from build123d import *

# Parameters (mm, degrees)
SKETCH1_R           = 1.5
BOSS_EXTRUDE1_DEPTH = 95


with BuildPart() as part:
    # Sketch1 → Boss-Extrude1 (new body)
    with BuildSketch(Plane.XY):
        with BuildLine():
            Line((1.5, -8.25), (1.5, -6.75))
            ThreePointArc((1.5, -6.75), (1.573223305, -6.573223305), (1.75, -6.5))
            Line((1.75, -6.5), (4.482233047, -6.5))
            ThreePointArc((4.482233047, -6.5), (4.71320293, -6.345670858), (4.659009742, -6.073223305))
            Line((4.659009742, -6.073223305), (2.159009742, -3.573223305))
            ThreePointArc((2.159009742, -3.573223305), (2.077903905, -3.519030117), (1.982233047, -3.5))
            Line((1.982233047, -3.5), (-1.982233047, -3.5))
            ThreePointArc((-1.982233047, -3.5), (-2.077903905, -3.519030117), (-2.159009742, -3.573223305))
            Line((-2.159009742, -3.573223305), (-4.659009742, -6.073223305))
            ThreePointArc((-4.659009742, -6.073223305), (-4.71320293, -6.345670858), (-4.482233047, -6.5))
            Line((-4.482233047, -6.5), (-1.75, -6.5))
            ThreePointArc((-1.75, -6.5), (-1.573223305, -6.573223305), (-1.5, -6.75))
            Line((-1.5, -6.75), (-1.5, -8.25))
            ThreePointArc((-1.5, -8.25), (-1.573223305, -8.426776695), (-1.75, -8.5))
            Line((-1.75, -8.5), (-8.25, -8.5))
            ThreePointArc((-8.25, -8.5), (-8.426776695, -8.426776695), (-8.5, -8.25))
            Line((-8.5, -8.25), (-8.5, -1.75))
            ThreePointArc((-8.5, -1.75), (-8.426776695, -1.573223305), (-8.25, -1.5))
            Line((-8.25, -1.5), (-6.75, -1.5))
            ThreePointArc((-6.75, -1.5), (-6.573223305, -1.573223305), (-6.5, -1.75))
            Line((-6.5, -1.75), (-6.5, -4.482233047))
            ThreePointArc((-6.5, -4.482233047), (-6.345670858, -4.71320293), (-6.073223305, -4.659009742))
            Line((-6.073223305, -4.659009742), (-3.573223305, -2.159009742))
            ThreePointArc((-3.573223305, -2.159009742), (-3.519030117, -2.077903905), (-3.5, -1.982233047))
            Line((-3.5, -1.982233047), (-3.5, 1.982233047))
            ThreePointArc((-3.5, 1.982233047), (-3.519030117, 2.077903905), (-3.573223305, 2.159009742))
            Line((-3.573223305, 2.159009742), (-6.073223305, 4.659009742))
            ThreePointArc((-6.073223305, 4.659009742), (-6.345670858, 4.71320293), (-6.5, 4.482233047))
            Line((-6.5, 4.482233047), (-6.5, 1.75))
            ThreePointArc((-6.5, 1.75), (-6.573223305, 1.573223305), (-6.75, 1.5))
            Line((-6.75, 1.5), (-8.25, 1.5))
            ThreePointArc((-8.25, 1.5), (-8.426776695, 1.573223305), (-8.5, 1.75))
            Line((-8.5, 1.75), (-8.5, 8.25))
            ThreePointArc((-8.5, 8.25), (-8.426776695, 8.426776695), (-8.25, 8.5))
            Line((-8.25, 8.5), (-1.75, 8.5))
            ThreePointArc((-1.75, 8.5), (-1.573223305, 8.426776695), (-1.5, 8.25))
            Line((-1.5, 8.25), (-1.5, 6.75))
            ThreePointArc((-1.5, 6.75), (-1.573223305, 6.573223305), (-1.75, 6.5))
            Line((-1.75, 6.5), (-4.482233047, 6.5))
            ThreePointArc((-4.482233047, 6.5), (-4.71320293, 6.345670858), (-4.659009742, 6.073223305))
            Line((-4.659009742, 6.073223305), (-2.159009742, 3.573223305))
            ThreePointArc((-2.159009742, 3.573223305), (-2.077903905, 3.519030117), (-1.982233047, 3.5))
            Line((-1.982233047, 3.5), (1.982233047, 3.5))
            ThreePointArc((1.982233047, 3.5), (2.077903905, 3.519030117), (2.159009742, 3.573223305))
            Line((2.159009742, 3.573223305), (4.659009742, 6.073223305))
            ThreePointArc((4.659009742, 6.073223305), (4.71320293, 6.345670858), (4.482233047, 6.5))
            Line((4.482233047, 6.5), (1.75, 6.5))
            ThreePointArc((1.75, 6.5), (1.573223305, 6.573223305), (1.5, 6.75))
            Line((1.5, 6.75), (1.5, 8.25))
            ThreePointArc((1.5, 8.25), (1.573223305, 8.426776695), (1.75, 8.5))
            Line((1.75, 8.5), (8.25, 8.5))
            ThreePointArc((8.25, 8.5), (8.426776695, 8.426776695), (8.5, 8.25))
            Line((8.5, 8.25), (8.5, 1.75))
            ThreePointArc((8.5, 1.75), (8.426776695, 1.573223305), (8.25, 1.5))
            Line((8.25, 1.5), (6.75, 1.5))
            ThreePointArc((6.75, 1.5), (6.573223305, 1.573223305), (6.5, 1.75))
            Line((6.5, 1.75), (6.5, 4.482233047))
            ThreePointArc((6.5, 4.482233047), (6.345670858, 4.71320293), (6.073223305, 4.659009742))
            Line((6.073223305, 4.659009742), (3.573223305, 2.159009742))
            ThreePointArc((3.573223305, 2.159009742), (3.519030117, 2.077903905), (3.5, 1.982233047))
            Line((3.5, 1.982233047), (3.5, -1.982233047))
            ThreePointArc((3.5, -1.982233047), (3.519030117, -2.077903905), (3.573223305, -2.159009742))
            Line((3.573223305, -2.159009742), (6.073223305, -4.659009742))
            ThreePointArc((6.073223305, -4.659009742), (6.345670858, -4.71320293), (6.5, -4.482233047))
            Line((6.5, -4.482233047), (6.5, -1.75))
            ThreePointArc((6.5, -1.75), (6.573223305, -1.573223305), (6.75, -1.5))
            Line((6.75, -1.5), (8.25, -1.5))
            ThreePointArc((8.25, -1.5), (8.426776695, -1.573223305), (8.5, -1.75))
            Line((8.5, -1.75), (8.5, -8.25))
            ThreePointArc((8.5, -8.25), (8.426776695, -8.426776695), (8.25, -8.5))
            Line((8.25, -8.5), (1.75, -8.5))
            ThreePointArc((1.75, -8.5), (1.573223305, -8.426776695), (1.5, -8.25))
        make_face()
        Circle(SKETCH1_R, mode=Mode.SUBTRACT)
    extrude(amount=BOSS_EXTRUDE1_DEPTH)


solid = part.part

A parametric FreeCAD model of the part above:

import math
import FreeCAD as App
import Part
import Sketcher
from FreeCAD import Vector

doc = App.newDocument("Part")
body = doc.addObject("PartDesign::Body", "Body")

# Sketch on XY plane
sketch1 = doc.addObject("Sketcher::SketchObject", "Sketch")
body.addObject(sketch1)
sketch1.AttachmentSupport = (doc.XY_Plane, [""])
sketch1.MapMode = "FlatFace"
sketch1.addGeometry([
    Part.LineSegment(Vector(1.5, -6.75, 0), Vector(1.5, -8.25, 0)),  # 0
    Part.ArcOfCircle(Part.Circle(Vector(1.75, -8.25, 0), Vector(0, 0, 1), 0.25), math.radians(-180), math.radians(-90)),  # 1
    Part.LineSegment(Vector(1.75, -8.5, 0), Vector(8.25, -8.5, 0)),  # 2
    Part.ArcOfCircle(Part.Circle(Vector(8.25, -8.25, 0), Vector(0, 0, 1), 0.25), math.radians(-90), math.radians(0)),  # 3
    Part.LineSegment(Vector(8.5, -8.25, 0), Vector(8.5, -1.75, 0)),  # 4
    Part.ArcOfCircle(Part.Circle(Vector(8.25, -1.75, 0), Vector(0, 0, 1), 0.25), math.radians(0), math.radians(90)),  # 5
    Part.LineSegment(Vector(8.25, -1.5, 0), Vector(6.75, -1.5, 0)),  # 6
    Part.ArcOfCircle(Part.Circle(Vector(6.75, -1.75, 0), Vector(0, 0, 1), 0.25), math.radians(90), math.radians(180)),  # 7
    Part.LineSegment(Vector(6.5, -1.75, 0), Vector(6.5, -4.48, 0)),  # 8
    Part.ArcOfCircle(Part.Circle(Vector(6.25, -4.48, 0), Vector(0, 0, 1), 0.25), math.radians(-135), math.radians(0)),  # 9
    Part.LineSegment(Vector(6.07, -4.66, 0), Vector(3.57, -2.16, 0)),  # 10
    Part.ArcOfCircle(Part.Circle(Vector(3.75, -1.98, 0), Vector(0, 0, 1), 0.25), math.radians(180), math.radians(225)),  # 11
    Part.LineSegment(Vector(3.5, -1.98, 0), Vector(3.5, 1.98, 0)),  # 12
    Part.ArcOfCircle(Part.Circle(Vector(3.75, 1.98, 0), Vector(0, 0, 1), 0.25), math.radians(135), math.radians(180)),  # 13
    Part.LineSegment(Vector(3.57, 2.16, 0), Vector(6.07, 4.66, 0)),  # 14
    Part.ArcOfCircle(Part.Circle(Vector(6.25, 4.48, 0), Vector(0, 0, 1), 0.25), math.radians(0), math.radians(135)),  # 15
    Part.LineSegment(Vector(6.5, 4.48, 0), Vector(6.5, 1.75, 0)),  # 16
    Part.ArcOfCircle(Part.Circle(Vector(6.75, 1.75, 0), Vector(0, 0, 1), 0.25), math.radians(-180), math.radians(-90)),  # 17
    Part.LineSegment(Vector(6.75, 1.5, 0), Vector(8.25, 1.5, 0)),  # 18
    Part.ArcOfCircle(Part.Circle(Vector(8.25, 1.75, 0), Vector(0, 0, 1), 0.25), math.radians(-90), math.radians(0)),  # 19
    Part.LineSegment(Vector(8.5, 1.75, 0), Vector(8.5, 8.25, 0)),  # 20
    Part.ArcOfCircle(Part.Circle(Vector(8.25, 8.25, 0), Vector(0, 0, 1), 0.25), math.radians(0), math.radians(90)),  # 21
    Part.LineSegment(Vector(8.25, 8.5, 0), Vector(1.75, 8.5, 0)),  # 22
    Part.ArcOfCircle(Part.Circle(Vector(1.75, 8.25, 0), Vector(0, 0, 1), 0.25), math.radians(90), math.radians(180)),  # 23
    Part.LineSegment(Vector(1.5, 8.25, 0), Vector(1.5, 6.75, 0)),  # 24
    Part.ArcOfCircle(Part.Circle(Vector(1.75, 6.75, 0), Vector(0, 0, 1), 0.25), math.radians(-180), math.radians(-90)),  # 25
    Part.LineSegment(Vector(1.75, 6.5, 0), Vector(4.48, 6.5, 0)),  # 26
    Part.ArcOfCircle(Part.Circle(Vector(4.48, 6.25, 0), Vector(0, 0, 1), 0.25), math.radians(-45), math.radians(90)),  # 27
    Part.LineSegment(Vector(4.66, 6.07, 0), Vector(2.16, 3.57, 0)),  # 28
    Part.ArcOfCircle(Part.Circle(Vector(1.98, 3.75, 0), Vector(0, 0, 1), 0.25), math.radians(-90), math.radians(-45)),  # 29
    Part.LineSegment(Vector(1.98, 3.5, 0), Vector(-1.98, 3.5, 0)),  # 30
    Part.ArcOfCircle(Part.Circle(Vector(-1.98, 3.75, 0), Vector(0, 0, 1), 0.25), math.radians(-135), math.radians(-90)),  # 31
    Part.LineSegment(Vector(-2.16, 3.57, 0), Vector(-4.66, 6.07, 0)),  # 32
    Part.ArcOfCircle(Part.Circle(Vector(-4.48, 6.25, 0), Vector(0, 0, 1), 0.25), math.radians(90), math.radians(225)),  # 33
    Part.LineSegment(Vector(-4.48, 6.5, 0), Vector(-1.75, 6.5, 0)),  # 34
    Part.ArcOfCircle(Part.Circle(Vector(-1.75, 6.75, 0), Vector(0, 0, 1), 0.25), math.radians(-90), math.radians(0)),  # 35
    Part.LineSegment(Vector(-1.5, 6.75, 0), Vector(-1.5, 8.25, 0)),  # 36
    Part.ArcOfCircle(Part.Circle(Vector(-1.75, 8.25, 0), Vector(0, 0, 1), 0.25), math.radians(0), math.radians(90)),  # 37
    Part.LineSegment(Vector(-1.75, 8.5, 0), Vector(-8.25, 8.5, 0)),  # 38
    Part.ArcOfCircle(Part.Circle(Vector(-8.25, 8.25, 0), Vector(0, 0, 1), 0.25), math.radians(90), math.radians(180)),  # 39
    Part.LineSegment(Vector(-8.5, 8.25, 0), Vector(-8.5, 1.75, 0)),  # 40
    Part.ArcOfCircle(Part.Circle(Vector(-8.25, 1.75, 0), Vector(0, 0, 1), 0.25), math.radians(-180), math.radians(-90)),  # 41
    Part.LineSegment(Vector(-8.25, 1.5, 0), Vector(-6.75, 1.5, 0)),  # 42
    Part.ArcOfCircle(Part.Circle(Vector(-6.75, 1.75, 0), Vector(0, 0, 1), 0.25), math.radians(-90), math.radians(0)),  # 43
    Part.LineSegment(Vector(-6.5, 1.75, 0), Vector(-6.5, 4.48, 0)),  # 44
    Part.ArcOfCircle(Part.Circle(Vector(-6.25, 4.48, 0), Vector(0, 0, 1), 0.25), math.radians(45), math.radians(180)),  # 45
    Part.LineSegment(Vector(-6.07, 4.66, 0), Vector(-3.57, 2.16, 0)),  # 46
    Part.ArcOfCircle(Part.Circle(Vector(-3.75, 1.98, 0), Vector(0, 0, 1), 0.25), math.radians(0), math.radians(45)),  # 47
    Part.LineSegment(Vector(-3.5, 1.98, 0), Vector(-3.5, -1.98, 0)),  # 48
    Part.ArcOfCircle(Part.Circle(Vector(-3.75, -1.98, 0), Vector(0, 0, 1), 0.25), math.radians(-45), math.radians(0)),  # 49
    Part.LineSegment(Vector(-3.57, -2.16, 0), Vector(-6.07, -4.66, 0)),  # 50
    Part.ArcOfCircle(Part.Circle(Vector(-6.25, -4.48, 0), Vector(0, 0, 1), 0.25), math.radians(180), math.radians(315)),  # 51
    Part.LineSegment(Vector(-6.5, -4.48, 0), Vector(-6.5, -1.75, 0)),  # 52
    Part.ArcOfCircle(Part.Circle(Vector(-6.75, -1.75, 0), Vector(0, 0, 1), 0.25), math.radians(0), math.radians(90)),  # 53
    Part.LineSegment(Vector(-6.75, -1.5, 0), Vector(-8.25, -1.5, 0)),  # 54
    Part.ArcOfCircle(Part.Circle(Vector(-8.25, -1.75, 0), Vector(0, 0, 1), 0.25), math.radians(90), math.radians(180)),  # 55
    Part.LineSegment(Vector(-8.5, -1.75, 0), Vector(-8.5, -8.25, 0)),  # 56
    Part.ArcOfCircle(Part.Circle(Vector(-8.25, -8.25, 0), Vector(0, 0, 1), 0.25), math.radians(-180), math.radians(-90)),  # 57
    Part.LineSegment(Vector(-8.25, -8.5, 0), Vector(-1.75, -8.5, 0)),  # 58
    Part.ArcOfCircle(Part.Circle(Vector(-1.75, -8.25, 0), Vector(0, 0, 1), 0.25), math.radians(-90), math.radians(0)),  # 59
    Part.LineSegment(Vector(-1.5, -8.25, 0), Vector(-1.5, -6.75, 0)),  # 60
    Part.ArcOfCircle(Part.Circle(Vector(-1.75, -6.75, 0), Vector(0, 0, 1), 0.25), math.radians(0), math.radians(90)),  # 61
    Part.LineSegment(Vector(-1.75, -6.5, 0), Vector(-4.48, -6.5, 0)),  # 62
    Part.ArcOfCircle(Part.Circle(Vector(-4.48, -6.25, 0), Vector(0, 0, 1), 0.25), math.radians(135), math.radians(270)),  # 63
    Part.LineSegment(Vector(-4.66, -6.07, 0), Vector(-2.16, -3.57, 0)),  # 64
    Part.ArcOfCircle(Part.Circle(Vector(-1.98, -3.75, 0), Vector(0, 0, 1), 0.25), math.radians(90), math.radians(135)),  # 65
    Part.LineSegment(Vector(-1.98, -3.5, 0), Vector(1.98, -3.5, 0)),  # 66
    Part.ArcOfCircle(Part.Circle(Vector(1.98, -3.75, 0), Vector(0, 0, 1), 0.25), math.radians(45), math.radians(90)),  # 67
    Part.LineSegment(Vector(2.16, -3.57, 0), Vector(4.66, -6.07, 0)),  # 68
    Part.ArcOfCircle(Part.Circle(Vector(4.48, -6.25, 0), Vector(0, 0, 1), 0.25), math.radians(-90), math.radians(45)),  # 69
    Part.LineSegment(Vector(4.48, -6.5, 0), Vector(1.75, -6.5, 0)),  # 70
    Part.ArcOfCircle(Part.Circle(Vector(1.75, -6.75, 0), Vector(0, 0, 1), 0.25), math.radians(90), math.radians(180)),  # 71
    Part.Circle(Vector(0, 0, 0), Vector(0, 0, 1), 1.5),  # 72
], False)
sketch1.addConstraint([
    Sketcher.Constraint("Tangent", 0, 2, 1, 1),
    Sketcher.Constraint("Tangent", 1, 2, 2, 1),
    Sketcher.Constraint("Tangent", 2, 2, 3, 1),
    Sketcher.Constraint("Tangent", 3, 2, 4, 1),
    Sketcher.Constraint("Tangent", 4, 2, 5, 1),
    Sketcher.Constraint("Tangent", 5, 2, 6, 1),
    Sketcher.Constraint("Tangent", 6, 2, 7, 1),
    Sketcher.Constraint("Tangent", 7, 2, 8, 1),
    Sketcher.Constraint("Tangent", 8, 2, 9, 2),
    Sketcher.Constraint("Tangent", 9, 1, 10, 1),
    Sketcher.Constraint("Tangent", 10, 2, 11, 2),
    Sketcher.Constraint("Tangent", 11, 1, 12, 1),
    Sketcher.Constraint("Tangent", 12, 2, 13, 2),
    Sketcher.Constraint("Tangent", 13, 1, 14, 1),
    Sketcher.Constraint("Tangent", 14, 2, 15, 2),
    Sketcher.Constraint("Tangent", 15, 1, 16, 1),
    Sketcher.Constraint("Tangent", 16, 2, 17, 1),
    Sketcher.Constraint("Tangent", 17, 2, 18, 1),
    Sketcher.Constraint("Tangent", 18, 2, 19, 1),
    Sketcher.Constraint("Tangent", 19, 2, 20, 1),
    Sketcher.Constraint("Tangent", 20, 2, 21, 1),
    Sketcher.Constraint("Tangent", 21, 2, 22, 1),
    Sketcher.Constraint("Tangent", 22, 2, 23, 1),
    Sketcher.Constraint("Tangent", 23, 2, 24, 1),
    Sketcher.Constraint("Tangent", 24, 2, 25, 1),
    Sketcher.Constraint("Tangent", 25, 2, 26, 1),
    Sketcher.Constraint("Tangent", 26, 2, 27, 2),
    Sketcher.Constraint("Tangent", 27, 1, 28, 1),
    Sketcher.Constraint("Tangent", 28, 2, 29, 2),
    Sketcher.Constraint("Tangent", 29, 1, 30, 1),
    Sketcher.Constraint("Tangent", 30, 2, 31, 2),
    Sketcher.Constraint("Tangent", 31, 1, 32, 1),
    Sketcher.Constraint("Tangent", 32, 2, 33, 2),
    Sketcher.Constraint("Tangent", 33, 1, 34, 1),
    Sketcher.Constraint("Tangent", 34, 2, 35, 1),
    Sketcher.Constraint("Tangent", 35, 2, 36, 1),
    Sketcher.Constraint("Tangent", 36, 2, 37, 1),
    Sketcher.Constraint("Tangent", 37, 2, 38, 1),
    Sketcher.Constraint("Tangent", 38, 2, 39, 1),
    Sketcher.Constraint("Tangent", 39, 2, 40, 1),
    Sketcher.Constraint("Tangent", 40, 2, 41, 1),
    Sketcher.Constraint("Tangent", 41, 2, 42, 1),
    Sketcher.Constraint("Tangent", 42, 2, 43, 1),
    Sketcher.Constraint("Tangent", 43, 2, 44, 1),
    Sketcher.Constraint("Tangent", 44, 2, 45, 2),
    Sketcher.Constraint("Tangent", 45, 1, 46, 1),
    Sketcher.Constraint("Tangent", 46, 2, 47, 2),
    Sketcher.Constraint("Tangent", 47, 1, 48, 1),
    Sketcher.Constraint("Tangent", 48, 2, 49, 2),
    Sketcher.Constraint("Tangent", 49, 1, 50, 1),
    Sketcher.Constraint("Tangent", 50, 2, 51, 2),
    Sketcher.Constraint("Tangent", 51, 1, 52, 1),
    Sketcher.Constraint("Tangent", 52, 2, 53, 1),
    Sketcher.Constraint("Tangent", 53, 2, 54, 1),
    Sketcher.Constraint("Tangent", 54, 2, 55, 1),
    Sketcher.Constraint("Tangent", 55, 2, 56, 1),
    Sketcher.Constraint("Tangent", 56, 2, 57, 1),
    Sketcher.Constraint("Tangent", 57, 2, 58, 1),
    Sketcher.Constraint("Tangent", 58, 2, 59, 1),
    Sketcher.Constraint("Tangent", 59, 2, 60, 1),
    Sketcher.Constraint("Tangent", 60, 2, 61, 1),
    Sketcher.Constraint("Tangent", 61, 2, 62, 1),
    Sketcher.Constraint("Tangent", 62, 2, 63, 2),
    Sketcher.Constraint("Tangent", 63, 1, 64, 1),
    Sketcher.Constraint("Tangent", 64, 2, 65, 2),
    Sketcher.Constraint("Tangent", 65, 1, 66, 1),
    Sketcher.Constraint("Tangent", 66, 2, 67, 2),
    Sketcher.Constraint("Tangent", 67, 1, 68, 1),
    Sketcher.Constraint("Tangent", 68, 2, 69, 2),
    Sketcher.Constraint("Tangent", 69, 1, 70, 1),
    Sketcher.Constraint("Tangent", 70, 2, 71, 1),
    Sketcher.Constraint("Tangent", 71, 2, 0, 1),
    Sketcher.Constraint("Vertical", 0),
    Sketcher.Constraint("Horizontal", 2),
    Sketcher.Constraint("Vertical", 4),
    Sketcher.Constraint("Horizontal", 6),
    Sketcher.Constraint("Vertical", 8),
    Sketcher.Constraint("Vertical", 12),
    Sketcher.Constraint("Vertical", 16),
    Sketcher.Constraint("Horizontal", 18),
    Sketcher.Constraint("Vertical", 20),
    Sketcher.Constraint("Horizontal", 22),
    Sketcher.Constraint("Vertical", 24),
    Sketcher.Constraint("Horizontal", 26),
    Sketcher.Constraint("Horizontal", 30),
    Sketcher.Constraint("Horizontal", 34),
    Sketcher.Constraint("Vertical", 36),
    Sketcher.Constraint("Horizontal", 38),
    Sketcher.Constraint("Vertical", 40),
    Sketcher.Constraint("Horizontal", 42),
    Sketcher.Constraint("Vertical", 44),
    Sketcher.Constraint("Vertical", 48),
    Sketcher.Constraint("Vertical", 52),
    Sketcher.Constraint("Horizontal", 54),
    Sketcher.Constraint("Vertical", 56),
    Sketcher.Constraint("Horizontal", 58),
    Sketcher.Constraint("Vertical", 60),
    Sketcher.Constraint("Horizontal", 62),
    Sketcher.Constraint("Horizontal", 66),
    Sketcher.Constraint("Horizontal", 70),
    Sketcher.Constraint("Coincident", 72, 3, -1, 1),
    Sketcher.Constraint("Equal", 1, 3),
    Sketcher.Constraint("Equal", 3, 5),
    Sketcher.Constraint("Equal", 5, 7),
    Sketcher.Constraint("Equal", 7, 9),
    Sketcher.Constraint("Equal", 9, 11),
    Sketcher.Constraint("Equal", 11, 13),
    Sketcher.Constraint("Equal", 13, 15),
    Sketcher.Constraint("Equal", 15, 17),
    Sketcher.Constraint("Equal", 17, 19),
    Sketcher.Constraint("Equal", 19, 21),
    Sketcher.Constraint("Equal", 21, 23),
    Sketcher.Constraint("Equal", 23, 25),
    Sketcher.Constraint("Equal", 25, 27),
    Sketcher.Constraint("Equal", 27, 29),
    Sketcher.Constraint("Equal", 29, 31),
    Sketcher.Constraint("Equal", 31, 33),
    Sketcher.Constraint("Equal", 33, 35),
    Sketcher.Constraint("Equal", 35, 37),
    Sketcher.Constraint("Equal", 37, 39),
    Sketcher.Constraint("Equal", 39, 41),
    Sketcher.Constraint("Equal", 41, 43),
    Sketcher.Constraint("Equal", 43, 45),
    Sketcher.Constraint("Equal", 45, 47),
    Sketcher.Constraint("Equal", 47, 49),
    Sketcher.Constraint("Equal", 49, 51),
    Sketcher.Constraint("Equal", 51, 53),
    Sketcher.Constraint("Equal", 53, 55),
    Sketcher.Constraint("Equal", 55, 57),
    Sketcher.Constraint("Equal", 57, 59),
    Sketcher.Constraint("Equal", 59, 61),
    Sketcher.Constraint("Equal", 61, 63),
    Sketcher.Constraint("Equal", 63, 65),
    Sketcher.Constraint("Equal", 65, 67),
    Sketcher.Constraint("Equal", 67, 69),
    Sketcher.Constraint("Equal", 69, 71),
    Sketcher.Constraint("Symmetric", 1, 3, 37, 3, -1, 1),
    Sketcher.Constraint("Symmetric", 5, 3, 41, 3, -1, 1),
    Sketcher.Constraint("Symmetric", 9, 3, 45, 3, -1, 1),
    Sketcher.Constraint("Symmetric", 11, 3, 47, 3, -1, 1),
    Sketcher.Constraint("Symmetric", 15, 3, 51, 3, -1, 1),
    Sketcher.Constraint("Symmetric", 19, 3, 55, 3, -1, 1),
    Sketcher.Constraint("Symmetric", 23, 3, 59, 3, -1, 1),
    Sketcher.Constraint("Symmetric", 27, 3, 63, 3, -1, 1),
    Sketcher.Constraint("Symmetric", 29, 3, 65, 3, -1, 1),
    Sketcher.Constraint("Symmetric", 33, 3, 69, 3, -1, 1),
    Sketcher.Constraint("Symmetric", 27, 3, 33, 3, -2),
    Sketcher.Constraint("Symmetric", 23, 3, 37, 3, -2),
    Sketcher.Constraint("Symmetric", 19, 3, 41, 3, -2),
    Sketcher.Constraint("Symmetric", 15, 3, 45, 3, -2),
    Sketcher.Constraint("Perpendicular", 10, 14),
    Sketcher.Constraint("Parallel", 14, 28),
    Sketcher.Constraint("Perpendicular", 28, 32),
    Sketcher.Constraint("Perpendicular", 46, 50),
    Sketcher.Constraint("Perpendicular", 64, 68),
    Sketcher.Constraint("Horizontal", 13, 3, 47, 3),
    Sketcher.Constraint("Equal", 54, 0),
    Sketcher.Constraint("Equal", 58, 4),
    Sketcher.Constraint("Equal", 70, 8),
    Sketcher.Constraint("Equal", 66, 12),
    Sketcher.Constraint("Equal", 14, 28),
    Sketcher.Constraint("Diameter", 72, 3.0),
    Sketcher.Constraint("Radius", 1, 0.25),
    Sketcher.Constraint("DistanceX", 2, 1, 2, 2, 6.5),
    Sketcher.Constraint("DistanceX", 6, 2, 6, 1, 1.5),
    Sketcher.Constraint("DistanceX", -1, 1, 0, 2, 1.5),
    Sketcher.Constraint("DistanceX", -1, 1, 11, 1, 3.5),
    Sketcher.Constraint("DistanceX", 26, 1, 26, 2, 2.732233),
])
pad1 = doc.addObject("PartDesign::Pad", "Pad")
body.addObject(pad1)
pad1.Profile = sketch1
pad1.Length = 95

doc.recompute()
